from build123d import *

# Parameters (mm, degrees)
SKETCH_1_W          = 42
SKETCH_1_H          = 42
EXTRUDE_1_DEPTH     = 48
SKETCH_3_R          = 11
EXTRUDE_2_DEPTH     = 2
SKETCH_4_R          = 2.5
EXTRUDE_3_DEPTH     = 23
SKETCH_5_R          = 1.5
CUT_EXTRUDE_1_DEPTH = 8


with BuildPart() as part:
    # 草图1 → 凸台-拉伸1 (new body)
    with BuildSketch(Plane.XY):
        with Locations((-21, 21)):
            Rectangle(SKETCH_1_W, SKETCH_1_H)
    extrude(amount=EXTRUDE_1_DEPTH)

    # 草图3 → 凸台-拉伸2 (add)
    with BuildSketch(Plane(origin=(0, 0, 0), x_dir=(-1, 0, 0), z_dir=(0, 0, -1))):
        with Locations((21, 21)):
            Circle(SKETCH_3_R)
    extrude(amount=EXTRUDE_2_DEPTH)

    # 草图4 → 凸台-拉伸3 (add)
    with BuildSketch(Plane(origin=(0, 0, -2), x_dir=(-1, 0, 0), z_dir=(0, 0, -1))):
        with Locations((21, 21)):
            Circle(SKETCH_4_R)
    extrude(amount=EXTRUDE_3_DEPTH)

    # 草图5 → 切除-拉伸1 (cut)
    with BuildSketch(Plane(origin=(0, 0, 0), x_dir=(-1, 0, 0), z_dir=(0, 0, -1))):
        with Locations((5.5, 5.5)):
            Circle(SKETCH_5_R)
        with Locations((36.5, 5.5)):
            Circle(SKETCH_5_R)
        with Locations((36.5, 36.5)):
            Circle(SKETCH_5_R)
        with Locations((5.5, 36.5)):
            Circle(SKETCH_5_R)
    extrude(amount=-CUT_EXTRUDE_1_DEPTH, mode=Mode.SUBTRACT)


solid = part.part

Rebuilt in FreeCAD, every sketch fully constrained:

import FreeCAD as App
import Part
import Sketcher

V = App.Vector

doc = App.newDocument("Part")
params = doc.addObject("Spreadsheet::Sheet", "Params")
for row, (alias, value) in enumerate([
    ("sketch1_width", "42 mm"),
    ("pad1_length", "48 mm"),
    ("sketch2_diameter", "22 mm"),
    ("pad2_length", "2 mm"),
    ("sketch3_diameter", "5 mm"),
    ("pad3_length", "23 mm"),
    ("sketch4_diameter", "3 mm"),
    ("pocket1_length", "8 mm"),
], start=1):
    params.set(f"A{row}", alias)
    params.set(f"B{row}", "=" + value)
    params.setAlias(f"B{row}", alias)

body = doc.addObject("PartDesign::Body", "Body")

# Sketch on XY plane
sketch1 = body.newObject("Sketcher::SketchObject", "Sketch")
sketch1.AttachmentSupport = (doc.getObject("XY_Plane"), [""])
sketch1.MapMode = "FlatFace"
sketch1.addGeometry(Part.LineSegment(V(-42, 42, 0), V(-42, 0, 0)), False)
sketch1.addGeometry(Part.LineSegment(V(-42, 0, 0), V(0, 0, 0)), False)
sketch1.addGeometry(Part.LineSegment(V(0, 0, 0), V(0, 42, 0)), False)
sketch1.addGeometry(Part.LineSegment(V(0, 42, 0), V(-42, 42, 0)), False)
sketch1.addConstraint(Sketcher.Constraint("Coincident", 0, 2, 1, 1))
sketch1.addConstraint(Sketcher.Constraint("Coincident", 1, 2, 2, 1))
sketch1.addConstraint(Sketcher.Constraint("Coincident", 2, 2, 3, 1))
sketch1.addConstraint(Sketcher.Constraint("Coincident", 3, 2, 0, 1))
sketch1.addConstraint(Sketcher.Constraint("Vertical", 0))
sketch1.addConstraint(Sketcher.Constraint("Horizontal", 1))
sketch1.addConstraint(Sketcher.Constraint("Vertical", 2))
sketch1.addConstraint(Sketcher.Constraint("Horizontal", 3))
sketch1.addConstraint(Sketcher.Constraint("Coincident", 1, 2, -1, 1))
sketch1.addConstraint(Sketcher.Constraint("Equal", 3, 0))
sketch1.addConstraint(Sketcher.Constraint("DistanceX", 1, 1, 1, 2, 42.0))
sketch1.setExpression("Constraints[10]", "Params.sketch1_width")
pad1 = body.newObject("PartDesign::Pad", "Pad")
pad1.Profile = sketch1
pad1.setExpression("Length", "Params.pad1_length")

# Sketch on XY plane
sketch2 = body.newObject("Sketcher::SketchObject", "Sketch001")
sketch2.AttachmentSupport = (doc.getObject("XY_Plane"), [""])
sketch2.MapMode = "FlatFace"
sketch2.addGeometry(Part.Circle(V(-21, 21, 0), V(0, 0, 1), 11), False)
sketch2.addConstraint(Sketcher.Constraint("Diameter", 0, 22.0))
sketch2.addConstraint(Sketcher.Constraint("DistanceX", 0, 3, -1, 1, 21.0))
sketch2.addConstraint(Sketcher.Constraint("DistanceY", -1, 1, 0, 3, 21.0))
sketch2.setExpression("Constraints[0]", "Params.sketch2_diameter")
pad2 = body.newObject("PartDesign::Pad", "Pad001")
pad2.Profile = sketch2
pad2.setExpression("Length", "Params.pad2_length")
pad2.Reversed = True

# Sketch on XY plane
sketch3 = body.newObject("Sketcher::SketchObject", "Sketch002")
sketch3.AttachmentSupport = (doc.getObject("XY_Plane"), [""])
sketch3.MapMode = "FlatFace"
sketch3.AttachmentOffset = App.Placement(V(0, 0, -2), App.Rotation())
sketch3.addGeometry(Part.Circle(V(-21, 21, 0), V(0, 0, 1), 2.5), False)
sketch3.addConstraint(Sketcher.Constraint("Diameter", 0, 5.0))
sketch3.addConstraint(Sketcher.Constraint("DistanceX", 0, 3, -1, 1, 21.0))
sketch3.addConstraint(Sketcher.Constraint("DistanceY", -1, 1, 0, 3, 21.0))
sketch3.setExpression("Constraints[0]", "Params.sketch3_diameter")
pad3 = body.newObject("PartDesign::Pad", "Pad002")
pad3.Profile = sketch3
pad3.setExpression("Length", "Params.pad3_length")
pad3.Reversed = True

# Sketch on XY plane
sketch4 = body.newObject("Sketcher::SketchObject", "Sketch003")
sketch4.AttachmentSupport = (doc.getObject("XY_Plane"), [""])
sketch4.MapMode = "FlatFace"
sketch4.addGeometry(Part.Circle(V(-5.5, 5.5, 0), V(0, 0, 1), 1.5), False)
sketch4.addGeometry(Part.Circle(V(-36.5, 5.5, 0), V(0, 0, 1), 1.5), False)
sketch4.addGeometry(Part.Circle(V(-36.5, 36.5, 0), V(0, 0, 1), 1.5), False)
sketch4.addGeometry(Part.Circle(V(-5.5, 36.5, 0), V(0, 0, 1), 1.5), False)
sketch4.addConstraint(Sketcher.Constraint("Equal", 0, 1))
sketch4.addConstraint(Sketcher.Constraint("Equal", 1, 2))
sketch4.addConstraint(Sketcher.Constraint("Equal", 2, 3))
sketch4.addConstraint(Sketcher.Constraint("Horizontal", 0, 3, 1, 3))
sketch4.addConstraint(Sketcher.Constraint("Horizontal", 2, 3, 3, 3))
sketch4.addConstraint(Sketcher.Constraint("Vertical", 1, 3, 2, 3))
sketch4.addConstraint(Sketcher.Constraint("Vertical", 0, 3, 3, 3))
sketch4.addConstraint(Sketcher.Constraint("Diameter", 0, 3.0))
sketch4.addConstraint(Sketcher.Constraint("DistanceX", 1, 3, 0, 3, 31.0))
sketch4.addConstraint(Sketcher.Constraint("DistanceY", 1, 3, 2, 3, 31.0))
sketch4.addConstraint(Sketcher.Constraint("DistanceX", 0, 3, -1, 1, 5.5))
sketch4.addConstraint(Sketcher.Constraint("DistanceY", -1, 1, 0, 3, 5.5))
sketch4.setExpression("Constraints[7]", "Params.sketch4_diameter")
pocket1 = body.newObject("PartDesign::Pocket", "Pocket")
pocket1.Profile = sketch4
pocket1.setExpression("Length", "Params.pocket1_length")
pocket1.Reversed = True

doc.recompute()
